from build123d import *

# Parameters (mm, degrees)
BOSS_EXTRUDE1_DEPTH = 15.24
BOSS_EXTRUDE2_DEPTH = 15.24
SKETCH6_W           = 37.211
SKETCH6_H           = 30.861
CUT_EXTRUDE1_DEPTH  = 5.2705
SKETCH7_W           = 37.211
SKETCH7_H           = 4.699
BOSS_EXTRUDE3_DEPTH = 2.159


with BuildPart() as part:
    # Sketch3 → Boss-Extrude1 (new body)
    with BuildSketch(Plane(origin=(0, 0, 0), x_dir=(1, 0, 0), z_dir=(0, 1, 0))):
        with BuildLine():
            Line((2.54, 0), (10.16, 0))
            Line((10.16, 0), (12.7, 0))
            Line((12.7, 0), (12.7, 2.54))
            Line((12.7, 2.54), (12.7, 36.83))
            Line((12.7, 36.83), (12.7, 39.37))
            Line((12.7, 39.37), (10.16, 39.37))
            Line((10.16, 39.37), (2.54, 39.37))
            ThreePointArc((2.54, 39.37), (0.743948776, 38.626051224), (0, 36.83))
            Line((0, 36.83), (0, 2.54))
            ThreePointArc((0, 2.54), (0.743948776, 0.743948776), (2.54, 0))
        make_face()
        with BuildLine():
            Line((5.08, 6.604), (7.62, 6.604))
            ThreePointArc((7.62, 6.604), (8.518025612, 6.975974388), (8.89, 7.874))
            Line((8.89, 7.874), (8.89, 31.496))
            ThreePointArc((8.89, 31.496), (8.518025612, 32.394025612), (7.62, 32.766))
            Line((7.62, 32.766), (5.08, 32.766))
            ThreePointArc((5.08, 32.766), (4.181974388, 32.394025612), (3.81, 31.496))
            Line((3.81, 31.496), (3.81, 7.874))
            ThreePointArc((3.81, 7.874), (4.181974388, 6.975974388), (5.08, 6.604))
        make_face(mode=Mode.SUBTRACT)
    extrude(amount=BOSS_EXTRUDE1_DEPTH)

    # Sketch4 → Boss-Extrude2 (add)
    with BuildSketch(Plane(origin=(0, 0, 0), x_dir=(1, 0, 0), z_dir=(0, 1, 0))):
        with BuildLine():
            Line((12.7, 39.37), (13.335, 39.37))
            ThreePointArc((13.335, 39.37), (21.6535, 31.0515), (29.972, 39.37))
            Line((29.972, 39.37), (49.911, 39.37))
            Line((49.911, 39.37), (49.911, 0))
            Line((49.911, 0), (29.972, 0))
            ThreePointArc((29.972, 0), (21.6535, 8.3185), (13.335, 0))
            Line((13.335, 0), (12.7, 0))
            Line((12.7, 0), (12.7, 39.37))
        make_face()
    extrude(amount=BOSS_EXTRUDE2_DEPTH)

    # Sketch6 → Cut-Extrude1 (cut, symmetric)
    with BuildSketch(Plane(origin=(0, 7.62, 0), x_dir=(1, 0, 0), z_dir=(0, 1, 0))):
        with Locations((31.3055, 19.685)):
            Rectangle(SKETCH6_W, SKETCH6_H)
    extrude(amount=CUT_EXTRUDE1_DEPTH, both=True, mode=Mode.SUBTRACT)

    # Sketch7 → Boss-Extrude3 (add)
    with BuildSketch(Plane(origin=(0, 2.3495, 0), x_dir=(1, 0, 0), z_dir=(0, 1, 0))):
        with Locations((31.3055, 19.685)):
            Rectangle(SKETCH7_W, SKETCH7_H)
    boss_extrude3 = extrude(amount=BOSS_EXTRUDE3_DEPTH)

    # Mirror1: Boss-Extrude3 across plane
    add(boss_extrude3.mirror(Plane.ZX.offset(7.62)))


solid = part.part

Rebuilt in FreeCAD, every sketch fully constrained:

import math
import FreeCAD as App
import Part
import Sketcher

V = App.Vector
Q = App.Units.Quantity


def add_polygon(sketch, points):
    """Adds a closed chain of lines whose ends are joined by coincident constraints."""
    first, n = sketch.GeometryCount, len(points)
    for a, b in zip(points, points[1:] + points[:1]):
        sketch.addGeometry(Part.LineSegment(App.Vector(*a, 0), App.Vector(*b, 0)), False)
    for i in range(n):
        sketch.addConstraint(Sketcher.Constraint("Coincident", first + i, 2, first + (i + 1) % n, 1))

doc = App.newDocument("Part")
body = doc.addObject("PartDesign::Body", "Body")

sketch1 = body.newObject("Sketcher::SketchObject", "Sketch")
sketch1.AttachmentSupport = (doc.getObject("XZ_Plane"), [""])
sketch1.MapMode = "FlatFace"
sketch1.addGeometry(Part.LineSegment(V(2.54, 0, 0), V(12.7, 0, 0)), False)
sketch1.addGeometry(Part.LineSegment(V(12.7, 0, 0), V(12.7, -39.37, 0)), False)
sketch1.addGeometry(Part.LineSegment(V(12.7, -39.37, 0), V(2.54, -39.37, 0)), False)
sketch1.addGeometry(Part.ArcOfCircle(Part.Circle(V(2.54, -36.83, 0), V(0, 0, 1), 2.54), math.radians(-180), math.radians(-90)), False)
sketch1.addGeometry(Part.LineSegment(V(0, -36.83, 0), V(0, -2.54, 0)), False)
sketch1.addGeometry(Part.ArcOfCircle(Part.Circle(V(2.54, -2.54, 0), V(0, 0, 1), 2.54), math.radians(90), math.radians(180)), False)
sketch1.addGeometry(Part.LineSegment(V(7.62, -6.604, 0), V(5.08, -6.604, 0)), False)
sketch1.addGeometry(Part.ArcOfCircle(Part.Circle(V(5.08, -7.874, 0), V(0, 0, 1), 1.27), math.radians(90), math.radians(180)), False)
sketch1.addGeometry(Part.LineSegment(V(3.81, -7.874, 0), V(3.81, -31.496, 0)), False)
sketch1.addGeometry(Part.ArcOfCircle(Part.Circle(V(5.08, -31.496, 0), V(0, 0, 1), 1.27), math.radians(180), math.radians(270)), False)
sketch1.addGeometry(Part.LineSegment(V(5.08, -32.766, 0), V(7.62, -32.766, 0)), False)
sketch1.addGeometry(Part.ArcOfCircle(Part.Circle(V(7.62, -31.496, 0), V(0, 0, 1), 1.27), math.radians(-90), math.radians(0)), False)
sketch1.addGeometry(Part.LineSegment(V(8.89, -31.496, 0), V(8.89, -7.874, 0)), False)
sketch1.addGeometry(Part.ArcOfCircle(Part.Circle(V(7.62, -7.874, 0), V(0, 0, 1), 1.27), math.radians(0), math.radians(90)), False)
sketch1.addConstraint(Sketcher.Constraint("Coincident", 0, 2, 1, 1))
sketch1.addConstraint(Sketcher.Constraint("Coincident", 1, 2, 2, 1))
sketch1.addConstraint(Sketcher.Constraint("Tangent", 2, 2, 3, 2))
sketch1.addConstraint(Sketcher.Constraint("Tangent", 3, 1, 4, 1))
sketch1.addConstraint(Sketcher.Constraint("Tangent", 4, 2, 5, 2))
sketch1.addConstraint(Sketcher.Constraint("Tangent", 5, 1, 0, 1))
sketch1.addConstraint(Sketcher.Constraint("Tangent", 6, 2, 7, 1))
sketch1.addConstraint(Sketcher.Constraint("Tangent", 7, 2, 8, 1))
sketch1.addConstraint(Sketcher.Constraint("Tangent", 8, 2, 9, 1))
sketch1.addConstraint(Sketcher.Constraint("Tangent", 9, 2, 10, 1))
sketch1.addConstraint(Sketcher.Constraint("Tangent", 10, 2, 11, 1))
sketch1.addConstraint(Sketcher.Constraint("Tangent", 11, 2, 12, 1))
sketch1.addConstraint(Sketcher.Constraint("Tangent", 12, 2, 13, 1))
sketch1.addConstraint(Sketcher.Constraint("Tangent", 13, 2, 6, 1))
sketch1.addConstraint(Sketcher.Constraint("Horizontal", 0))
sketch1.addConstraint(Sketcher.Constraint("Vertical", 1))
sketch1.addConstraint(Sketcher.Constraint("Horizontal", 2))
sketch1.addConstraint(Sketcher.Constraint("Vertical", 4))
sketch1.addConstraint(Sketcher.Constraint("Horizontal", 6))
sketch1.addConstraint(Sketcher.Constraint("Vertical", 8))
sketch1.addConstraint(Sketcher.Constraint("Horizontal", 10))
sketch1.addConstraint(Sketcher.Constraint("Vertical", 12))
sketch1.addConstraint(Sketcher.Constraint("Equal", 3, 5))
sketch1.addConstraint(Sketcher.Constraint("Equal", 7, 9))
sketch1.addConstraint(Sketcher.Constraint("Equal", 9, 11))
sketch1.addConstraint(Sketcher.Constraint("Equal", 11, 13))
sketch1.addConstraint(Sketcher.Constraint("PointOnObject", 0, 2, -1))
sketch1.addConstraint(Sketcher.Constraint("PointOnObject", 3, 1, -2))
sketch1.addConstraint(Sketcher.Constraint("Radius", 3, Q("0.1 in")))
sketch1.addConstraint(Sketcher.Constraint("Radius", 7, Q("0.05 in")))
sketch1.addConstraint(Sketcher.Constraint("DistanceX", 0, 1, 0, 2, Q("0.4 in")))
sketch1.addConstraint(Sketcher.Constraint("DistanceX", 6, 2, 6, 1, Q("0.1 in")))
sketch1.addConstraint(Sketcher.Constraint("DistanceY", 1, 2, 1, 1, Q("1.55 in")))
sketch1.addConstraint(Sketcher.Constraint("DistanceY", 8, 2, 8, 1, Q("0.93 in")))
sketch1.addConstraint(Sketcher.Constraint("DistanceX", -1, 1, 7, 3, Q("0.2 in")))
sketch1.addConstraint(Sketcher.Constraint("DistanceY", 7, 3, -1, 1, Q("0.31 in")))
pad1 = body.newObject("PartDesign::Pad", "Pad")
pad1.Profile = sketch1
pad1.Length = Q("0.6 in")
pad1.Reversed = True

sketch2 = body.newObject("Sketcher::SketchObject", "Sketch001")
sketch2.AttachmentSupport = (doc.getObject("XZ_Plane"), [""])
sketch2.MapMode = "FlatFace"
sketch2.addGeometry(Part.LineSegment(V(13.335, -39.37, 0), V(12.7, -39.37, 0)), False)
sketch2.addGeometry(Part.LineSegment(V(12.7, -39.37, 0), V(12.7, 0, 0)), False)
sketch2.addGeometry(Part.LineSegment(V(12.7, 0, 0), V(13.335, 0, 0)), False)
sketch2.addGeometry(Part.ArcOfCircle(Part.Circle(V(21.6535, 0, 0), V(0, 0, 1), 8.3185), math.radians(180), math.radians(360)), False)
sketch2.addGeometry(Part.LineSegment(V(29.972, 0, 0), V(49.911, 0, 0)), False)
sketch2.addGeometry(Part.LineSegment(V(49.911, 0, 0), V(49.911, -39.37, 0)), False)
sketch2.addGeometry(Part.LineSegment(V(49.911, -39.37, 0), V(29.972, -39.37, 0)), False)
sketch2.addGeometry(Part.ArcOfCircle(Part.Circle(V(21.6535, -39.37, 0), V(0, 0, 1), 8.3185), math.radians(0), math.radians(180)), False)
sketch2.addConstraint(Sketcher.Constraint("Coincident", 0, 2, 1, 1))
sketch2.addConstraint(Sketcher.Constraint("Coincident", 1, 2, 2, 1))
sketch2.addConstraint(Sketcher.Constraint("Coincident", 2, 2, 3, 1))
sketch2.addConstraint(Sketcher.Constraint("Coincident", 3, 2, 4, 1))
sketch2.addConstraint(Sketcher.Constraint("Coincident", 4, 2, 5, 1))
sketch2.addConstraint(Sketcher.Constraint("Coincident", 5, 2, 6, 1))
sketch2.addConstraint(Sketcher.Constraint("Coincident", 6, 2, 7, 1))
sketch2.addConstraint(Sketcher.Constraint("Coincident", 7, 2, 0, 1))
sketch2.addConstraint(Sketcher.Constraint("Horizontal", 0))
sketch2.addConstraint(Sketcher.Constraint("Vertical", 1))
sketch2.addConstraint(Sketcher.Constraint("Horizontal", 2))
sketch2.addConstraint(Sketcher.Constraint("Horizontal", 4))
sketch2.addConstraint(Sketcher.Constraint("Vertical", 5))
sketch2.addConstraint(Sketcher.Constraint("Horizontal", 6))
sketch2.addConstraint(Sketcher.Constraint("Equal", 3, 7))
sketch2.addConstraint(Sketcher.Constraint("PointOnObject", 3, 3, -1))
sketch2.addConstraint(Sketcher.Constraint("PointOnObject", 1, 2, -1))
sketch2.addConstraint(Sketcher.Constraint("PointOnObject", 3, 2, -1))
sketch2.addConstraint(Sketcher.Constraint("Horizontal", 7, 3, 0, 2))
sketch2.addConstraint(Sketcher.Constraint("Horizontal", 0, 2, 5, 2))
sketch2.addConstraint(Sketcher.Constraint("Vertical", 3, 3, 7, 3))
sketch2.addConstraint(Sketcher.Constraint("DistanceY", 1, 1, 1, 2, Q("1.55 in")))
sketch2.addConstraint(Sketcher.Constraint("DistanceX", -1, 1, 0, 2, Q("0.5 in")))
sketch2.addConstraint(Sketcher.Constraint("Radius", 3, Q("0.3275 in")))
sketch2.addConstraint(Sketcher.Constraint("DistanceX", 0, 2, 0, 1, Q("0.025 in")))
sketch2.addConstraint(Sketcher.Constraint("DistanceX", 4, 1, 4, 2, Q("0.785 in")))
pad2 = body.newObject("PartDesign::Pad", "Pad001")
pad2.Profile = sketch2
pad2.Length = Q("0.6 in")
pad2.Reversed = True

sketch3 = body.newObject("Sketcher::SketchObject", "Sketch002")
sketch3.AttachmentSupport = (doc.getObject("XZ_Plane"), [""])
sketch3.MapMode = "FlatFace"
sketch3.AttachmentOffset = App.Placement(V(0, 0, -0.3 * 25.4), App.Rotation())
add_polygon(sketch3, [(12.7, -35.1155), (12.7, -4.2545), (49.911, -4.2545), (49.911, -35.1155)])
sketch3.addConstraint(Sketcher.Constraint("Vertical", 0))
sketch3.addConstraint(Sketcher.Constraint("Horizontal", 1))
sketch3.addConstraint(Sketcher.Constraint("Vertical", 2))
sketch3.addConstraint(Sketcher.Constraint("Horizontal", 3))
sketch3.addConstraint(Sketcher.Constraint("DistanceX", -1, 1, 0, 2, Q("0.5 in")))
sketch3.addConstraint(Sketcher.Constraint("DistanceX", 1, 1, 1, 2, Q("1.465 in")))
sketch3.addConstraint(Sketcher.Constraint("DistanceY", 0, 1, 0, 2, Q("1.215 in")))
sketch3.addConstraint(Sketcher.Constraint("DistanceY", 0, 2, -1, 1, Q("0.1675 in")))
pocket1 = body.newObject("PartDesign::Pocket", "Pocket")
pocket1.Profile = sketch3
pocket1.Length = Q("0.415 in")
pocket1.Midplane = True

sketch4 = body.newObject("Sketcher::SketchObject", "Sketch003")
sketch4.AttachmentSupport = (doc.getObject("XZ_Plane"), [""])
sketch4.MapMode = "FlatFace"
sketch4.AttachmentOffset = App.Placement(V(0, 0, -0.0925 * 25.4), App.Rotation())
add_polygon(sketch4, [(12.7, -22.0345), (12.7, -17.3355), (49.911, -17.3355), (49.911, -22.0345)])
sketch4.addConstraint(Sketcher.Constraint("Vertical", 0))
sketch4.addConstraint(Sketcher.Constraint("Horizontal", 1))
sketch4.addConstraint(Sketcher.Constraint("Vertical", 2))
sketch4.addConstraint(Sketcher.Constraint("Horizontal", 3))
sketch4.addConstraint(Sketcher.Constraint("DistanceX", -1, 1, 0, 2, Q("0.5 in")))
sketch4.addConstraint(Sketcher.Constraint("DistanceX", 1, 1, 1, 2, Q("1.465 in")))
sketch4.addConstraint(Sketcher.Constraint("DistanceY", 0, 1, 0, 2, Q("0.185 in")))
sketch4.addConstraint(Sketcher.Constraint("DistanceY", 0, 2, -1, 1, Q("0.6825 in")))
pad3 = body.newObject("PartDesign::Pad", "Pad002")
pad3.Profile = sketch4
pad3.Length = Q("0.085 in")
pad3.Reversed = True
doc.recompute()

datumplane = body.newObject("PartDesign::Plane", "DatumPlane")
datumplane.AttachmentSupport = (doc.getObject("XZ_Plane"), [""])
datumplane.MapMode = "FlatFace"
datumplane.AttachmentOffset = App.Placement(V(0, 0, -0.3 * 25.4), App.Rotation())
mirrored = body.newObject("PartDesign::Mirrored", "Mirrored")
mirrored.Originals = [pad3]
mirrored.MirrorPlane = (datumplane, [""])
body.Tip = mirrored

doc.recompute()
